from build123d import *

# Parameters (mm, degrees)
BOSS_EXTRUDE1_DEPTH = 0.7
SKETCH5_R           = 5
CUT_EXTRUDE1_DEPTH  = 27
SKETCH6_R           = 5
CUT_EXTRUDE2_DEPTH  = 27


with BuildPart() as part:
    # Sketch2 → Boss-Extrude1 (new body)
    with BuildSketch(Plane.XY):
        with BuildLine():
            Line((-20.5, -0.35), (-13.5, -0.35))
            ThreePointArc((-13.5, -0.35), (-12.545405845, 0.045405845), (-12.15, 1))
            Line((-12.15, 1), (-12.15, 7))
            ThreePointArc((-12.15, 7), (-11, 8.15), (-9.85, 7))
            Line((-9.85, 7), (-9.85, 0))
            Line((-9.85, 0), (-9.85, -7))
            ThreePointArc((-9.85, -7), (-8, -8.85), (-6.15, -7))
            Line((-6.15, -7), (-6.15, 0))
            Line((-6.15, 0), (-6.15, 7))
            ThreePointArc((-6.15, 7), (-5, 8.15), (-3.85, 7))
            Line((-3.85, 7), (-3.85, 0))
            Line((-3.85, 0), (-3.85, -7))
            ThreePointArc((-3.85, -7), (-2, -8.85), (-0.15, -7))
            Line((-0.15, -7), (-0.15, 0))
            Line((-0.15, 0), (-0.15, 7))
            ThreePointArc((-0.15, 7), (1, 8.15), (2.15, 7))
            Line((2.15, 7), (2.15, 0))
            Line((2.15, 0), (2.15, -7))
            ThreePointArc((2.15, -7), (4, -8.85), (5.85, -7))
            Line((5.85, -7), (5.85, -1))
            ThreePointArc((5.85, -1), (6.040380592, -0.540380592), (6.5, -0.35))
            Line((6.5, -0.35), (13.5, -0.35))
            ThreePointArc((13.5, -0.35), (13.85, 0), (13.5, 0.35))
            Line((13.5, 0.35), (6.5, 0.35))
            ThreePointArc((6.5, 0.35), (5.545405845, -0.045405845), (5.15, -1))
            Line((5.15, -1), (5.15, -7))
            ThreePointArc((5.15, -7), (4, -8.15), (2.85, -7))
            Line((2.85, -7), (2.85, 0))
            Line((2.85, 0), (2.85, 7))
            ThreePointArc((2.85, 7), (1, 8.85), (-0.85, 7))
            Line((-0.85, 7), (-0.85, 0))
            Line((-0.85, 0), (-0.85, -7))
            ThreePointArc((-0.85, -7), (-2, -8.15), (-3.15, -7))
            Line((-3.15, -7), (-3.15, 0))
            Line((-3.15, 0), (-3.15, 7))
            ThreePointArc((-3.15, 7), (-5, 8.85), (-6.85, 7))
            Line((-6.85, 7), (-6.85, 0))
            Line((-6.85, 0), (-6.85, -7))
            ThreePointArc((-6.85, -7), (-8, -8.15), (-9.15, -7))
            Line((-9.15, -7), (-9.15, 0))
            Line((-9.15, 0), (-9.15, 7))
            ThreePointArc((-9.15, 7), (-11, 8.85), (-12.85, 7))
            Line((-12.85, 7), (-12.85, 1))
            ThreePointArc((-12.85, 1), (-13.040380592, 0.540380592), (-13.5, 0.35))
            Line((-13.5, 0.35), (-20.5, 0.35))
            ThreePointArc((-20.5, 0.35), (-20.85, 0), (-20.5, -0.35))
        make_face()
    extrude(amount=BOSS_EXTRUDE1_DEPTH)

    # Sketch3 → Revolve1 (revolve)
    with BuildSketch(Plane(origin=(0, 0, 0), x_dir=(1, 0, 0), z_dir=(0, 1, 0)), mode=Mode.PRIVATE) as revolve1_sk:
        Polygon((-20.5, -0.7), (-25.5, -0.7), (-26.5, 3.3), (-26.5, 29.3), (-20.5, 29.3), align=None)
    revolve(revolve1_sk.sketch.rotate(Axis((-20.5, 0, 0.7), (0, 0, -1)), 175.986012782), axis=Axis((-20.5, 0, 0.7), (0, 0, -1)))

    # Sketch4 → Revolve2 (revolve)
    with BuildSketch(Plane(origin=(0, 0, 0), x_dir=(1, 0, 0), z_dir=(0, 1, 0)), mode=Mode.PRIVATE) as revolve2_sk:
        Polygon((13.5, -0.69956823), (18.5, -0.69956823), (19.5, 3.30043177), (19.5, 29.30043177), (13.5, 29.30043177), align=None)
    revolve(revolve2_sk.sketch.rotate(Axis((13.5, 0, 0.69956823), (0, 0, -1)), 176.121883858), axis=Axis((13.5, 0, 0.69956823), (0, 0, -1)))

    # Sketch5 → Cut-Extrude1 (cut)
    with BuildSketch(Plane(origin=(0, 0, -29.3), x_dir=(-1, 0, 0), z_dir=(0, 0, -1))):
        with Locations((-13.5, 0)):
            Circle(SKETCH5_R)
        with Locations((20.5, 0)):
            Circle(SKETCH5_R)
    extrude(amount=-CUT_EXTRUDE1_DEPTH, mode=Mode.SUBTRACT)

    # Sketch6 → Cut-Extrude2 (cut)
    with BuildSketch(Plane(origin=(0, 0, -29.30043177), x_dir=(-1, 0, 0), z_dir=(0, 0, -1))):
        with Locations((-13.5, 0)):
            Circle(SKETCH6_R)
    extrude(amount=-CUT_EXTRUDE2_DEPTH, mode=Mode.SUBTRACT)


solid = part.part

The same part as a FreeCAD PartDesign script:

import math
import FreeCAD as App
import Part
import Sketcher
from FreeCAD import Vector
Q = App.Units.Quantity

doc = App.newDocument("Part")
body = doc.addObject("PartDesign::Body", "Body")

# Sketch on XY plane
sketch1 = body.newObject("Sketcher::SketchObject", "Sketch")
sketch1.AttachmentSupport = (doc.getObject("XY_Plane"), [""])
sketch1.MapMode = "FlatFace"
sketch1.addGeometry([
    Part.LineSegment(Vector(-20.5, -0.35, 0), Vector(-13.5, -0.35, 0)),  # 0
    Part.ArcOfCircle(Part.Circle(Vector(-13.5, 1, 0), Vector(0, 0, 1), 1.35), math.radians(-90), math.radians(0)),  # 1
    Part.LineSegment(Vector(-12.15, 1, 0), Vector(-12.15, 7, 0)),  # 2
    Part.ArcOfCircle(Part.Circle(Vector(-11, 7, 0), Vector(0, 0, 1), 1.15), math.radians(0), math.radians(180)),  # 3
    Part.LineSegment(Vector(-9.85, 7, 0), Vector(-9.85, -7, 0)),  # 4
    Part.ArcOfCircle(Part.Circle(Vector(-8, -7, 0), Vector(0, 0, 1), 1.85), math.radians(180), math.radians(360)),  # 5
    Part.LineSegment(Vector(-6.15, -7, 0), Vector(-6.15, 7, 0)),  # 6
    Part.ArcOfCircle(Part.Circle(Vector(-5, 7, 0), Vector(0, 0, 1), 1.15), math.radians(0), math.radians(180)),  # 7
    Part.LineSegment(Vector(-3.85, 7, 0), Vector(-3.85, -7, 0)),  # 8
    Part.ArcOfCircle(Part.Circle(Vector(-2, -7, 0), Vector(0, 0, 1), 1.85), math.radians(180), math.radians(360)),  # 9
    Part.LineSegment(Vector(-0.15, -7, 0), Vector(-0.15, 7, 0)),  # 10
    Part.ArcOfCircle(Part.Circle(Vector(1, 7, 0), Vector(0, 0, 1), 1.15), math.radians(0), math.radians(180)),  # 11
    Part.LineSegment(Vector(2.15, 7, 0), Vector(2.15, -7, 0)),  # 12
    Part.ArcOfCircle(Part.Circle(Vector(4, -7, 0), Vector(0, 0, 1), 1.85), math.radians(180), math.radians(360)),  # 13
    Part.LineSegment(Vector(5.85, -7, 0), Vector(5.85, -1, 0)),  # 14
    Part.ArcOfCircle(Part.Circle(Vector(6.5, -1, 0), Vector(0, 0, 1), 0.65), math.radians(90), math.radians(180)),  # 15
    Part.LineSegment(Vector(6.5, -0.35, 0), Vector(13.5, -0.35, 0)),  # 16
    Part.ArcOfCircle(Part.Circle(Vector(13.5, 0, 0), Vector(0, 0, 1), 0.35), math.radians(-90), math.radians(90)),  # 17
    Part.LineSegment(Vector(13.5, 0.35, 0), Vector(6.5, 0.35, 0)),  # 18
    Part.ArcOfCircle(Part.Circle(Vector(6.5, -1, 0), Vector(0, 0, 1), 1.35), math.radians(90), math.radians(180)),  # 19
    Part.LineSegment(Vector(5.15, -1, 0), Vector(5.15, -7, 0)),  # 20
    Part.ArcOfCircle(Part.Circle(Vector(4, -7, 0), Vector(0, 0, 1), 1.15), math.radians(180), math.radians(360)),  # 21
    Part.LineSegment(Vector(2.85, -7, 0), Vector(2.85, 7, 0)),  # 22
    Part.ArcOfCircle(Part.Circle(Vector(1, 7, 0), Vector(0, 0, 1), 1.85), math.radians(0), math.radians(180)),  # 23
    Part.LineSegment(Vector(-0.85, 7, 0), Vector(-0.85, -7, 0)),  # 24
    Part.ArcOfCircle(Part.Circle(Vector(-2, -7, 0), Vector(0, 0, 1), 1.15), math.radians(180), math.radians(360)),  # 25
    Part.LineSegment(Vector(-3.15, -7, 0), Vector(-3.15, 7, 0)),  # 26
    Part.ArcOfCircle(Part.Circle(Vector(-5, 7, 0), Vector(0, 0, 1), 1.85), math.radians(0), math.radians(180)),  # 27
    Part.LineSegment(Vector(-6.85, 7, 0), Vector(-6.85, -7, 0)),  # 28
    Part.ArcOfCircle(Part.Circle(Vector(-8, -7, 0), Vector(0, 0, 1), 1.15), math.radians(180), math.radians(360)),  # 29
    Part.LineSegment(Vector(-9.15, -7, 0), Vector(-9.15, 7, 0)),  # 30
    Part.ArcOfCircle(Part.Circle(Vector(-11, 7, 0), Vector(0, 0, 1), 1.85), math.radians(0), math.radians(180)),  # 31
    Part.LineSegment(Vector(-12.85, 7, 0), Vector(-12.85, 1, 0)),  # 32
    Part.ArcOfCircle(Part.Circle(Vector(-13.5, 1, 0), Vector(0, 0, 1), 0.65), math.radians(-90), math.radians(0)),  # 33
    Part.LineSegment(Vector(-13.5, 0.35, 0), Vector(-20.5, 0.35, 0)),  # 34
    Part.ArcOfCircle(Part.Circle(Vector(-20.5, 0, 0), Vector(0, 0, 1), 0.35), math.radians(90), math.radians(270)),  # 35
], False)
sketch1.addConstraint([
    Sketcher.Constraint("Tangent", 0, 2, 1, 1),
    Sketcher.Constraint("Tangent", 1, 2, 2, 1),
    Sketcher.Constraint("Tangent", 2, 2, 3, 2),
    Sketcher.Constraint("Tangent", 3, 1, 4, 1),
    Sketcher.Constraint("Tangent", 4, 2, 5, 1),
    Sketcher.Constraint("Tangent", 5, 2, 6, 1),
    Sketcher.Constraint("Tangent", 6, 2, 7, 2),
    Sketcher.Constraint("Tangent", 7, 1, 8, 1),
    Sketcher.Constraint("Tangent", 8, 2, 9, 1),
    Sketcher.Constraint("Tangent", 9, 2, 10, 1),
    Sketcher.Constraint("Tangent", 10, 2, 11, 2),
    Sketcher.Constraint("Tangent", 11, 1, 12, 1),
    Sketcher.Constraint("Tangent", 12, 2, 13, 1),
    Sketcher.Constraint("Tangent", 13, 2, 14, 1),
    Sketcher.Constraint("Tangent", 14, 2, 15, 2),
    Sketcher.Constraint("Tangent", 15, 1, 16, 1),
    Sketcher.Constraint("Tangent", 16, 2, 17, 1),
    Sketcher.Constraint("Tangent", 17, 2, 18, 1),
    Sketcher.Constraint("Tangent", 18, 2, 19, 1),
    Sketcher.Constraint("Tangent", 19, 2, 20, 1),
    Sketcher.Constraint("Tangent", 20, 2, 21, 2),
    Sketcher.Constraint("Tangent", 21, 1, 22, 1),
    Sketcher.Constraint("Tangent", 22, 2, 23, 1),
    Sketcher.Constraint("Tangent", 23, 2, 24, 1),
    Sketcher.Constraint("Tangent", 24, 2, 25, 2),
    Sketcher.Constraint("Tangent", 25, 1, 26, 1),
    Sketcher.Constraint("Tangent", 26, 2, 27, 1),
    Sketcher.Constraint("Tangent", 27, 2, 28, 1),
    Sketcher.Constraint("Tangent", 28, 2, 29, 2),
    Sketcher.Constraint("Tangent", 29, 1, 30, 1),
    Sketcher.Constraint("Tangent", 30, 2, 31, 1),
    Sketcher.Constraint("Tangent", 31, 2, 32, 1),
    Sketcher.Constraint("Tangent", 32, 2, 33, 2),
    Sketcher.Constraint("Tangent", 33, 1, 34, 1),
    Sketcher.Constraint("Tangent", 34, 2, 35, 1),
    Sketcher.Constraint("Tangent", 35, 2, 0, 1),
    Sketcher.Constraint("Horizontal", 0),
    Sketcher.Constraint("Vertical", 2),
    Sketcher.Constraint("Vertical", 4),
    Sketcher.Constraint("Vertical", 6),
    Sketcher.Constraint("Vertical", 8),
    Sketcher.Constraint("Vertical", 10),
    Sketcher.Constraint("Vertical", 12),
    Sketcher.Constraint("Vertical", 14),
    Sketcher.Constraint("Horizontal", 16),
    Sketcher.Constraint("Horizontal", 18),
    Sketcher.Constraint("Vertical", 20),
    Sketcher.Constraint("Vertical", 22),
    Sketcher.Constraint("Vertical", 24),
    Sketcher.Constraint("Vertical", 26),
    Sketcher.Constraint("Vertical", 28),
    Sketcher.Constraint("Vertical", 30),
    Sketcher.Constraint("Vertical", 32),
    Sketcher.Constraint("Horizontal", 34),
    Sketcher.Constraint("Coincident", 19, 3, 15, 3),
    Sketcher.Constraint("Coincident", 21, 3, 13, 3),
    Sketcher.Constraint("Coincident", 23, 3, 11, 3),
    Sketcher.Constraint("Coincident", 25, 3, 9, 3),
    Sketcher.Constraint("Coincident", 27, 3, 7, 3),
    Sketcher.Constraint("Coincident", 29, 3, 5, 3),
    Sketcher.Constraint("Coincident", 31, 3, 3, 3),
    Sketcher.Constraint("Coincident", 33, 3, 1, 3),
    Sketcher.Constraint("Equal", 3, 7),
    Sketcher.Constraint("Equal", 5, 9),
    Sketcher.Constraint("Equal", 7, 11),
    Sketcher.Constraint("Equal", 9, 13),
    Sketcher.Constraint("Equal", 1, 19),
    Sketcher.Constraint("Equal", 11, 21),
    Sketcher.Constraint("Symmetric", 0, 2, 17, 2, -1, 1),
    Sketcher.Constraint("PointOnObject", 17, 3, -1),
    Sketcher.Constraint("Horizontal", 3, 3, 7, 3),
    Sketcher.Constraint("Horizontal", 5, 3, 9, 3),
    Sketcher.Constraint("Horizontal", 7, 3, 11, 3),
    Sketcher.Constraint("Horizontal", 9, 3, 13, 3),
    Sketcher.Constraint("Equal", 0, 16),
    Sketcher.Constraint("Equal", 2, 14),
    Sketcher.Constraint("DistanceX", 0, 1, 0, 2, Q("7 mm")),
    Sketcher.Constraint("DistanceY", 2, 1, 2, 2, Q("6 mm")),
    Sketcher.Constraint("DistanceY", 4, 2, 4, 1, Q("14 mm")),
    Sketcher.Constraint("Radius", 1, Q("1.35 mm")),
    Sketcher.Constraint("Radius", 3, Q("1.15 mm")),
])
pad1 = body.newObject("PartDesign::Pad", "Pad")
pad1.Profile = sketch1
pad1.Length = 0.7

# Sketch on XZ plane
sketch2 = body.newObject("Sketcher::SketchObject", "Sketch001")
sketch2.AttachmentSupport = (doc.getObject("XZ_Plane"), [""])
sketch2.MapMode = "FlatFace"
sketch2.addGeometry([
    Part.LineSegment(Vector(-25.5, 0.7, 0), Vector(-20.5, 0.7, 0)),  # 0
    Part.LineSegment(Vector(-20.5, 0.7, 0), Vector(-20.5, -29.3, 0)),  # 1
    Part.LineSegment(Vector(-20.5, -29.3, 0), Vector(-26.5, -29.3, 0)),  # 2
    Part.LineSegment(Vector(-26.5, -29.3, 0), Vector(-26.5, -3.3, 0)),  # 3
    Part.LineSegment(Vector(-26.5, -3.3, 0), Vector(-25.5, 0.7, 0)),  # 4
], False)
sketch2.addGeometry(Part.LineSegment(Vector(-20.5, 0.7, 0), Vector(-20.5, -29.3, 0)), True)  # axis
sketch2.addConstraint([
    Sketcher.Constraint("Coincident", 0, 2, 1, 1),
    Sketcher.Constraint("Coincident", 1, 2, 2, 1),
    Sketcher.Constraint("Coincident", 2, 2, 3, 1),
    Sketcher.Constraint("Coincident", 3, 2, 4, 1),
    Sketcher.Constraint("Coincident", 4, 2, 0, 1),
    Sketcher.Constraint("Horizontal", 0),
    Sketcher.Constraint("Vertical", 1),
    Sketcher.Constraint("Horizontal", 2),
    Sketcher.Constraint("Vertical", 3),
    Sketcher.Constraint("Vertical", 5),
    Sketcher.Constraint("Coincident", 5, 1, 0, 2),
    Sketcher.Constraint("Horizontal", 2, 2, 5, 2),
    Sketcher.Constraint("DistanceX", 0, 1, 0, 2, Q("5 mm")),
    Sketcher.Constraint("DistanceX", 2, 2, 2, 1, Q("6 mm")),
    Sketcher.Constraint("DistanceY", 1, 2, 1, 1, Q("30 mm")),
    Sketcher.Constraint("DistanceY", 3, 1, 3, 2, Q("26 mm")),
    Sketcher.Constraint("DistanceX", 0, 2, -1, 1, Q("20.5 mm")),
    Sketcher.Constraint("DistanceY", -1, 1, 0, 2, Q("0.7 mm")),
])
revolution = body.newObject("PartDesign::Revolution", "Revolution")
revolution.Profile = sketch2
revolution.ReferenceAxis = (sketch2, ["Axis0"])
revolution.Angle = 360

# Sketch on XZ plane
sketch3 = body.newObject("Sketcher::SketchObject", "Sketch002")
sketch3.AttachmentSupport = (doc.getObject("XZ_Plane"), [""])
sketch3.MapMode = "FlatFace"
sketch3.addGeometry([
    Part.LineSegment(Vector(13.5, 0.7, 0), Vector(18.5, 0.7, 0)),  # 0
    Part.LineSegment(Vector(18.5, 0.7, 0), Vector(19.5, -3.3, 0)),  # 1
    Part.LineSegment(Vector(19.5, -3.3, 0), Vector(19.5, -29.3, 0)),  # 2
    Part.LineSegment(Vector(19.5, -29.3, 0), Vector(13.5, -29.3, 0)),  # 3
    Part.LineSegment(Vector(13.5, -29.3, 0), Vector(13.5, 0.7, 0)),  # 4
], False)
sketch3.addGeometry(Part.LineSegment(Vector(13.5, 0.7, 0), Vector(13.5, -29.3, 0)), True)  # axis
sketch3.addConstraint([
    Sketcher.Constraint("Coincident", 0, 2, 1, 1),
    Sketcher.Constraint("Coincident", 1, 2, 2, 1),
    Sketcher.Constraint("Coincident", 2, 2, 3, 1),
    Sketcher.Constraint("Coincident", 3, 2, 4, 1),
    Sketcher.Constraint("Coincident", 4, 2, 0, 1),
    Sketcher.Constraint("Horizontal", 0),
    Sketcher.Constraint("Vertical", 2),
    Sketcher.Constraint("Horizontal", 3),
    Sketcher.Constraint("Vertical", 4),
    Sketcher.Constraint("Vertical", 5),
    Sketcher.Constraint("Coincident", 5, 1, 4, 2),
    Sketcher.Constraint("Horizontal", 2, 2, 5, 2),
    Sketcher.Constraint("DistanceX", 0, 1, 0, 2, Q("5 mm")),
    Sketcher.Constraint("DistanceX", 3, 2, 3, 1, Q("6 mm")),
    Sketcher.Constraint("DistanceY", 2, 2, 2, 1, Q("26 mm")),
    Sketcher.Constraint("DistanceY", 4, 1, 4, 2, Q("30 mm")),
    Sketcher.Constraint("DistanceX", -1, 1, 0, 2, Q("18.5 mm")),
    Sketcher.Constraint("DistanceY", -1, 1, 0, 2, Q("0.699568 mm")),
])
revolution2 = body.newObject("PartDesign::Revolution", "Revolution001")
revolution2.Profile = sketch3
revolution2.ReferenceAxis = (sketch3, ["Axis0"])
revolution2.Angle = 360

# Sketch on XY plane
sketch4 = body.newObject("Sketcher::SketchObject", "Sketch003")
sketch4.AttachmentSupport = (doc.getObject("XY_Plane"), [""])
sketch4.MapMode = "FlatFace"
sketch4.AttachmentOffset = App.Placement(Vector(0, 0, -29.3), App.Rotation())
sketch4.addGeometry([
    Part.Circle(Vector(14, 0, 0), Vector(0, 0, 1), 5),
    Part.Circle(Vector(-20, 0, 0), Vector(0, 0, 1), 5),
], False)
sketch4.addConstraint([
    Sketcher.Constraint("Equal", 0, 1),
    Sketcher.Constraint("PointOnObject", 0, 3, -1),
    Sketcher.Constraint("PointOnObject", 1, 3, -1),
    Sketcher.Constraint("Diameter", 0, Q("10 mm")),
    Sketcher.Constraint("DistanceX", 1, 3, 0, 3, Q("34 mm")),
    Sketcher.Constraint("DistanceX", -1, 1, 0, 3, Q("13.5 mm")),
])
pocket1 = body.newObject("PartDesign::Pocket", "Pocket")
pocket1.Profile = sketch4
pocket1.Length = 27
pocket1.Reversed = True

# Sketch on XY plane
sketch5 = body.newObject("Sketcher::SketchObject", "Sketch004")
sketch5.AttachmentSupport = (doc.getObject("XY_Plane"), [""])
sketch5.MapMode = "FlatFace"
sketch5.AttachmentOffset = App.Placement(Vector(0, 0, -29.300432), App.Rotation())
sketch5.addGeometry(Part.Circle(Vector(14, 0, 0), Vector(0, 0, 1), 5), False)
sketch5.addConstraint([
    Sketcher.Constraint("PointOnObject", 0, 3, -1),
    Sketcher.Constraint("Diameter", 0, Q("10 mm")),
    Sketcher.Constraint("DistanceX", -1, 1, 0, 3, Q("13.5 mm")),
])
pocket2 = body.newObject("PartDesign::Pocket", "Pocket001")
pocket2.Profile = sketch5
pocket2.Length = 27
pocket2.Reversed = True

doc.recompute()
